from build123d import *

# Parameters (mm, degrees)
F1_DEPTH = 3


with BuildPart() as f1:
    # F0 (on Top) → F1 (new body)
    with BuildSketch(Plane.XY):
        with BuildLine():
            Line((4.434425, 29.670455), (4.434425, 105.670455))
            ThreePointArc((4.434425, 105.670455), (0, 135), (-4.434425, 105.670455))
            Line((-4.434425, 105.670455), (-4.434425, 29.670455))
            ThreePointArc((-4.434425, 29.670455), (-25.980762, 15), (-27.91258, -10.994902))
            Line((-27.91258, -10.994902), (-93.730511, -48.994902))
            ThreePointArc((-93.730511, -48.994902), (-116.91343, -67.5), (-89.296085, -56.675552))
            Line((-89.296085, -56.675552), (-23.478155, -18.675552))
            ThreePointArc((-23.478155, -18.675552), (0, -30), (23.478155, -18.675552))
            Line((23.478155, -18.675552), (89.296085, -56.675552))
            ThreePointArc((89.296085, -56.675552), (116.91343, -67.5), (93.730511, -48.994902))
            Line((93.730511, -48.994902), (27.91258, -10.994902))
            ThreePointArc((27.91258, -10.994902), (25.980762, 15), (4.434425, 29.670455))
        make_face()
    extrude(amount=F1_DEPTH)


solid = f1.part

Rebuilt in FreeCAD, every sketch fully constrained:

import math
import FreeCAD as App
import Part
import Sketcher
from FreeCAD import Vector
Q = App.Units.Quantity

doc = App.newDocument("Part")
body = doc.addObject("PartDesign::Body", "Body")

sketch1 = body.newObject("Sketcher::SketchObject", "Sketch")
sketch1.AttachmentSupport = (doc.getObject("XY_Plane"), [""])
sketch1.MapMode = "FlatFace"
sketch1.addGeometry([
    Part.LineSegment(Vector(4.434425, 29.670455, 0), Vector(4.434425, 105.670455, 0)),
    Part.ArcOfCircle(Part.Circle(Vector(0, 120, 0), Vector(0, 0, 1), 15), math.radians(-72.804781), math.radians(252.804781)),
    Part.LineSegment(Vector(-4.434425, 105.670455, 0), Vector(-4.434425, 29.670455, 0)),
    Part.ArcOfCircle(Part.Circle(Vector(0.000001, 0, 0), Vector(0, 0, 1), 30.000001), math.radians(98.500277), math.radians(201.499723)),
    Part.LineSegment(Vector(-27.91258, -10.994902, 0), Vector(-93.730511, -48.994902, 0)),
    Part.ArcOfCircle(Part.Circle(Vector(-103.923048, -60.000001, 0), Vector(0, 0, 1), 15), math.radians(47.195224), math.radians(372.804783)),
    Part.LineSegment(Vector(-89.296085, -56.675552, 0), Vector(-23.478155, -18.675552, 0)),
    Part.ArcOfCircle(Part.Circle(Vector(0, 0, 0), Vector(0, 0, 1), 30), math.radians(-141.499724), math.radians(-38.500276)),
    Part.LineSegment(Vector(23.478155, -18.675552, 0), Vector(89.296085, -56.675552, 0)),
    Part.ArcOfCircle(Part.Circle(Vector(103.923048, -60.000001, 0), Vector(0, 0, 1), 15), math.radians(167.195217), math.radians(492.804776)),
    Part.LineSegment(Vector(93.730511, -48.994902, 0), Vector(27.91258, -10.994902, 0)),
    Part.ArcOfCircle(Part.Circle(Vector(-0.000001, 0, 0), Vector(0, 0, 1), 30.000001), math.radians(-21.499723), math.radians(81.499723)),
], False)
sketch1.addConstraint([
    Sketcher.Constraint("Coincident", 0, 2, 1, 1),
    Sketcher.Constraint("Coincident", 1, 2, 2, 1),
    Sketcher.Constraint("Coincident", 2, 2, 3, 1),
    Sketcher.Constraint("Coincident", 3, 2, 4, 1),
    Sketcher.Constraint("Coincident", 4, 2, 5, 1),
    Sketcher.Constraint("Coincident", 5, 2, 6, 1),
    Sketcher.Constraint("Coincident", 6, 2, 7, 1),
    Sketcher.Constraint("Coincident", 7, 2, 8, 1),
    Sketcher.Constraint("Coincident", 8, 2, 9, 1),
    Sketcher.Constraint("Coincident", 9, 2, 10, 1),
    Sketcher.Constraint("Coincident", 10, 2, 11, 1),
    Sketcher.Constraint("Coincident", 11, 2, 0, 1),
    Sketcher.Constraint("Vertical", 0),
    Sketcher.Constraint("Vertical", 2),
    Sketcher.Constraint("Coincident", 3, 3, -1, 1),
    Sketcher.Constraint("Coincident", 7, 3, -1, 1),
    Sketcher.Constraint("Coincident", 11, 3, -1, 1),
    Sketcher.Constraint("Equal", 1, 5),
    Sketcher.Constraint("Equal", 3, 7),
    Sketcher.Constraint("Equal", 5, 9),
    Sketcher.Constraint("Equal", 7, 11),
    Sketcher.Constraint("Symmetric", 5, 3, 9, 3, -2),
    Sketcher.Constraint("Symmetric", 0, 2, 1, 2, -2),
    Sketcher.Constraint("Parallel", 4, 6),
    Sketcher.Constraint("Parallel", 8, 10),
    Sketcher.Constraint("Horizontal", 6, 2, 7, 2),
    Sketcher.Constraint("Horizontal", 5, 2, 8, 2),
    Sketcher.Constraint("Horizontal", 4, 2, 9, 2),
    Sketcher.Constraint("Equal", 4, 6),
    Sketcher.Constraint("Radius", 1, Q("15 mm")),
    Sketcher.Constraint("Radius", 3, Q("30.000001 mm")),
    Sketcher.Constraint("DistanceY", 0, 1, 0, 2, Q("76 mm")),
    Sketcher.Constraint("Angle", 4, Q("-150 deg")),
    Sketcher.Constraint("Distance", 4, Q("76 mm")),
    Sketcher.Constraint("DistanceY", -1, 1, 1, 3, Q("120 mm")),
    Sketcher.Constraint("DistanceY", 5, 3, -1, 1, Q("60.000001 mm")),
    Sketcher.Constraint("DistanceY", 3, 2, 11, 3, Q("10.994902 mm")),
])
pad1 = body.newObject("PartDesign::Pad", "Pad")
pad1.Profile = sketch1
pad1.Length = 3

doc.recompute()
